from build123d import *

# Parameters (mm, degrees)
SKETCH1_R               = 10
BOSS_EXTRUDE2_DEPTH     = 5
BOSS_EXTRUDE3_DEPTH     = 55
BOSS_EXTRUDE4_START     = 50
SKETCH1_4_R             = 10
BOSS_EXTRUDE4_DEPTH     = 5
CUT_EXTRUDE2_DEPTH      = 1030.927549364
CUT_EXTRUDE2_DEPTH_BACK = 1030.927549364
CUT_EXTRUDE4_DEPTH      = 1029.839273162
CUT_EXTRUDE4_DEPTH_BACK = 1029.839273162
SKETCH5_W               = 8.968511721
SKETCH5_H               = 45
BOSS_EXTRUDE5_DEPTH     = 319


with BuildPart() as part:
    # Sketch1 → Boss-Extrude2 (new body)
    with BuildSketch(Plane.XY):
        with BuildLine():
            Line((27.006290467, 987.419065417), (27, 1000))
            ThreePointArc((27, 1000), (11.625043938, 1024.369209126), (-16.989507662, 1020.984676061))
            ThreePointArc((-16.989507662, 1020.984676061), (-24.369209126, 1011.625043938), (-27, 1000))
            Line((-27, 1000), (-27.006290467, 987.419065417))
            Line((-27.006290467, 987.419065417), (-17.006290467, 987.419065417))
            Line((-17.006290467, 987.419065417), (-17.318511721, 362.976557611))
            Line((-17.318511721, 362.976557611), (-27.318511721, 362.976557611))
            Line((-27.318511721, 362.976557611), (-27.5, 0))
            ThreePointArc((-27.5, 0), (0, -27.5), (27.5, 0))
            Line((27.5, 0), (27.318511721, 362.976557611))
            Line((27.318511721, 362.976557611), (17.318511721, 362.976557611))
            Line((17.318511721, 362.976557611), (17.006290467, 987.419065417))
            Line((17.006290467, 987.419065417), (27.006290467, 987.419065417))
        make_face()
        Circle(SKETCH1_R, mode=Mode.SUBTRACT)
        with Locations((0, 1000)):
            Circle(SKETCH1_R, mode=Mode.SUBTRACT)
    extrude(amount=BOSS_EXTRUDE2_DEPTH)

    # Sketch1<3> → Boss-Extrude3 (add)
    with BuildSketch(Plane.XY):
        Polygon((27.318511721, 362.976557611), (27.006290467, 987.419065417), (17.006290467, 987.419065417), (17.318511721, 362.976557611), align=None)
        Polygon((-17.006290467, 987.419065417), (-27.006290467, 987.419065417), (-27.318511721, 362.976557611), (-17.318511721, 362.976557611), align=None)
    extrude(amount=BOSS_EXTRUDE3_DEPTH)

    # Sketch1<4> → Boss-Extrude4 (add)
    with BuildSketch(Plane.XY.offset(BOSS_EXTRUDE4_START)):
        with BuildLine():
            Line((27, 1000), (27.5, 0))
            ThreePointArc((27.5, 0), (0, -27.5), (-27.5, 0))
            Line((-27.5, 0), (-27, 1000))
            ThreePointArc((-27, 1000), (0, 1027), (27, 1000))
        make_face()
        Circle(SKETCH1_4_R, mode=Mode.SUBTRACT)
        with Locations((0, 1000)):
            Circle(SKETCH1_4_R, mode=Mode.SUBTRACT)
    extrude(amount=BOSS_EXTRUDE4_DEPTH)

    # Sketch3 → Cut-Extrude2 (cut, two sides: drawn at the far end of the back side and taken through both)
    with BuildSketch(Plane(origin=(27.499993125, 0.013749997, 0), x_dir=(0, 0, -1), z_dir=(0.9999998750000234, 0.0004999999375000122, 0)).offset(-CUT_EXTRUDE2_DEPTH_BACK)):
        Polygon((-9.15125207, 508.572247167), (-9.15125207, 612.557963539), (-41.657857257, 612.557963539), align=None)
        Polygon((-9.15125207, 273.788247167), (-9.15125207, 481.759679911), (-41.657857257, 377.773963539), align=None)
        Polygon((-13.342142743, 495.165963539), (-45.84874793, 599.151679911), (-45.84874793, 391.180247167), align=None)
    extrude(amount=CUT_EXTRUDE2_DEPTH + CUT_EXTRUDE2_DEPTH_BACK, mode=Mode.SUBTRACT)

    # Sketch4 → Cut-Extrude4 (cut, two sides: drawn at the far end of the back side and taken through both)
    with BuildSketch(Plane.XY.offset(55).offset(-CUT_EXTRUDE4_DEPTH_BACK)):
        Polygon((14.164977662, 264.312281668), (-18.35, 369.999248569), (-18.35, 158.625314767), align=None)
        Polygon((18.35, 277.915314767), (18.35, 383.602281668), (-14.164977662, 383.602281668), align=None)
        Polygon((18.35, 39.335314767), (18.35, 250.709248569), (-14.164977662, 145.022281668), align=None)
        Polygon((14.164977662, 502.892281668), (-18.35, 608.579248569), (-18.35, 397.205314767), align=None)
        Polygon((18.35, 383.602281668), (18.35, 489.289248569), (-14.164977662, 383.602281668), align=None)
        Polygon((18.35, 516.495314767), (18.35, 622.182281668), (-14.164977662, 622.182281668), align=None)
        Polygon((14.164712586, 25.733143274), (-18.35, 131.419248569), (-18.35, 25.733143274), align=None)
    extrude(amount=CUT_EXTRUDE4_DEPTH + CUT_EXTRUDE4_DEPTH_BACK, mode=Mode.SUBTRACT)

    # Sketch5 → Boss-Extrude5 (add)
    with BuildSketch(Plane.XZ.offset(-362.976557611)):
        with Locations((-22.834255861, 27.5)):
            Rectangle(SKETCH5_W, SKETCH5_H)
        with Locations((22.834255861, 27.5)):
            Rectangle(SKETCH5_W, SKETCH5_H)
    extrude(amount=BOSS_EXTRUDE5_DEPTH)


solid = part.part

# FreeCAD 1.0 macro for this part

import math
import FreeCAD as App
import Part
import Sketcher

V = App.Vector


def add_polygon(sketch, points):
    """Adds a closed chain of lines whose ends are joined by coincident constraints."""
    first, n = sketch.GeometryCount, len(points)
    for a, b in zip(points, points[1:] + points[:1]):
        sketch.addGeometry(Part.LineSegment(App.Vector(*a, 0), App.Vector(*b, 0)), False)
    for i in range(n):
        sketch.addConstraint(Sketcher.Constraint("Coincident", first + i, 2, first + (i + 1) % n, 1))

doc = App.newDocument("Part")
body = doc.addObject("PartDesign::Body", "Body")

sketch1 = body.newObject("Sketcher::SketchObject", "Sketch")
sketch1.AttachmentSupport = (doc.getObject("XY_Plane"), [""])
sketch1.MapMode = "FlatFace"
sketch1.addGeometry([
    Part.LineSegment(V(27, 987, 0), V(27, 1000, 0)),
    Part.ArcOfCircle(Part.Circle(V(0, 1000, 0), V(0, 0, 1), 27), math.radians(0), math.radians(180)),
    Part.LineSegment(V(-27, 1000, 0), V(-27, 987, 0)),
    Part.LineSegment(V(-27, 987, 0), V(-17, 987, 0)),
    Part.LineSegment(V(-17, 987, 0), V(-17, 363, 0)),
    Part.LineSegment(V(-17, 363, 0), V(-27, 363, 0)),
    Part.LineSegment(V(-27, 363, 0), V(-28, 0, 0)),
    Part.ArcOfCircle(Part.Circle(V(0, 0, 0), V(0, 0, 1), 28), math.radians(180), math.radians(360)),
    Part.LineSegment(V(28, 0, 0), V(27, 363, 0)),
    Part.LineSegment(V(27, 363, 0), V(17, 363, 0)),
    Part.LineSegment(V(17, 363, 0), V(17, 987, 0)),
    Part.LineSegment(V(17, 987, 0), V(27, 987, 0)),
    Part.Circle(V(0, 0, 0), V(0, 0, 1), 10),
    Part.Circle(V(0, 1000, 0), V(0, 0, 1), 10),
], False)
sketch1.addConstraint([
    Sketcher.Constraint("Coincident", 0, 2, 1, 1),
    Sketcher.Constraint("Coincident", 1, 2, 2, 1),
    Sketcher.Constraint("Coincident", 2, 2, 3, 1),
    Sketcher.Constraint("Coincident", 3, 2, 4, 1),
    Sketcher.Constraint("Coincident", 4, 2, 5, 1),
    Sketcher.Constraint("Coincident", 5, 2, 6, 1),
    Sketcher.Constraint("Coincident", 6, 2, 7, 1),
    Sketcher.Constraint("Coincident", 7, 2, 8, 1),
    Sketcher.Constraint("Coincident", 8, 2, 9, 1),
    Sketcher.Constraint("Coincident", 9, 2, 10, 1),
    Sketcher.Constraint("Coincident", 10, 2, 11, 1),
    Sketcher.Constraint("Coincident", 11, 2, 0, 1),
    Sketcher.Constraint("Horizontal", 3),
    Sketcher.Constraint("Horizontal", 5),
    Sketcher.Constraint("Horizontal", 9),
    Sketcher.Constraint("Horizontal", 11),
    Sketcher.Constraint("Coincident", 7, 3, -1, 1),
    Sketcher.Constraint("Coincident", 12, 3, -1, 1),
    Sketcher.Constraint("Coincident", 13, 3, 1, 3),
    Sketcher.Constraint("Equal", 12, 13),
    Sketcher.Constraint("Symmetric", 0, 2, 1, 2, -2),
    Sketcher.Constraint("Symmetric", 5, 2, 8, 2, -2),
    Sketcher.Constraint("Symmetric", 3, 2, 10, 2, -2),
    Sketcher.Constraint("PointOnObject", 6, 2, -1),
    Sketcher.Constraint("PointOnObject", 7, 2, -1),
    Sketcher.Constraint("Parallel", 2, 4),
    Sketcher.Constraint("Parallel", 4, 6),
    Sketcher.Constraint("Parallel", 0, 8),
    Sketcher.Constraint("Parallel", 8, 10),
    Sketcher.Constraint("Horizontal", 13, 3, 0, 2),
    Sketcher.Constraint("Equal", 3, 5),
    Sketcher.Constraint("Diameter", 12, 20.0),
    Sketcher.Constraint("Radius", 1, 27.0),
    Sketcher.Constraint("Radius", 7, 27.5),
    Sketcher.Constraint("DistanceX", 3, 1, 3, 2, 10.0),
    Sketcher.Constraint("DistanceY", -1, 1, 1, 3, 1000.0),
    Sketcher.Constraint("Distance", 0, 12.580936),
    Sketcher.Constraint("Distance", 4, 624.442586),
])
pad1 = body.newObject("PartDesign::Pad", "Pad")
pad1.Profile = sketch1
pad1.Length = 5

sketch2 = body.newObject("Sketcher::SketchObject", "Sketch001")
sketch2.AttachmentSupport = (doc.getObject("XY_Plane"), [""])
sketch2.MapMode = "FlatFace"
add_polygon(sketch2, [(27, 363), (27, 987), (17, 987), (17, 363)])
add_polygon(sketch2, [(-17, 987), (-27, 987), (-27, 363), (-17, 363)])
sketch2.addConstraint([
    Sketcher.Constraint("Horizontal", 1),
    Sketcher.Constraint("Horizontal", 3),
    Sketcher.Constraint("Horizontal", 4),
    Sketcher.Constraint("Horizontal", 6),
    Sketcher.Constraint("Symmetric", 0, 2, 4, 2, -2),
    Sketcher.Constraint("Symmetric", 3, 2, 5, 2, -2),
    Sketcher.Constraint("Parallel", 0, 2),
    Sketcher.Constraint("Parallel", 5, 7),
    Sketcher.Constraint("Equal", 3, 4),
    Sketcher.Constraint("DistanceX", 1, 2, 1, 1, 10.0),
    Sketcher.Constraint("DistanceX", -1, 1, 0, 2, 27.00629),
    Sketcher.Constraint("DistanceX", -1, 1, 2, 2, 17.318512),
    Sketcher.Constraint("Distance", 0, 624.442586),
    Sketcher.Constraint("DistanceY", -1, 1, 0, 2, 987.419065),
])
pad2 = body.newObject("PartDesign::Pad", "Pad001")
pad2.Profile = sketch2
pad2.Length = 55

sketch3 = body.newObject("Sketcher::SketchObject", "Sketch002")
sketch3.AttachmentSupport = (doc.getObject("XY_Plane"), [""])
sketch3.MapMode = "FlatFace"
sketch3.AttachmentOffset = App.Placement(V(0, 0, 50), App.Rotation())
sketch3.addGeometry([
    Part.LineSegment(V(28, 0, 0), V(27, 1000, 0)),
    Part.ArcOfCircle(Part.Circle(V(0, 1000, 0), V(0, 0, 1), 27), math.radians(0), math.radians(180)),
    Part.LineSegment(V(-27, 1000, 0), V(-28, 0, 0)),
    Part.ArcOfCircle(Part.Circle(V(0, 0, 0), V(0, 0, 1), 28), math.radians(180), math.radians(360)),
    Part.Circle(V(0, 0, 0), V(0, 0, 1), 10),
    Part.Circle(V(0, 1000, 0), V(0, 0, 1), 10),
], False)
sketch3.addConstraint([
    Sketcher.Constraint("Coincident", 0, 2, 1, 1),
    Sketcher.Constraint("Coincident", 1, 2, 2, 1),
    Sketcher.Constraint("Coincident", 2, 2, 3, 1),
    Sketcher.Constraint("Coincident", 3, 2, 0, 1),
    Sketcher.Constraint("Coincident", 3, 3, -1, 1),
    Sketcher.Constraint("Coincident", 4, 3, -1, 1),
    Sketcher.Constraint("Coincident", 5, 3, 1, 3),
    Sketcher.Constraint("Equal", 4, 5),
    Sketcher.Constraint("Symmetric", 0, 2, 1, 2, -2),
    Sketcher.Constraint("PointOnObject", 2, 2, -1),
    Sketcher.Constraint("PointOnObject", 3, 2, -1),
    Sketcher.Constraint("Horizontal", 5, 3, 0, 2),
    Sketcher.Constraint("Diameter", 4, 20.0),
    Sketcher.Constraint("Radius", 1, 27.0),
    Sketcher.Constraint("Radius", 3, 27.5),
    Sketcher.Constraint("DistanceY", -1, 1, 1, 3, 1000.0),
])
pad3 = body.newObject("PartDesign::Pad", "Pad002")
pad3.Profile = sketch3
pad3.Length = 5

sketch4 = body.newObject("Sketcher::SketchObject", "Sketch003")
sketch4.Placement = App.Placement(V(27.499993, 0.01375, 0), App.Rotation(V(0, 0, -1), V(-0.0005, 0.999999875, 0), V(0.999999875, 0.0005, 0), "ZXY"))
add_polygon(sketch4, [(-9, 509), (-9, 613), (-42, 613)])
add_polygon(sketch4, [(-9, 274), (-9, 482), (-42, 378)])
add_polygon(sketch4, [(-13, 495), (-46, 599), (-46, 391)])
sketch4.addConstraint([
    Sketcher.Constraint("Vertical", 0),
    Sketcher.Constraint("Horizontal", 1),
    Sketcher.Constraint("Vertical", 3),
    Sketcher.Constraint("Vertical", 7),
    Sketcher.Constraint("Parallel", 2, 5),
    Sketcher.Constraint("Parallel", 5, 6),
    Sketcher.Constraint("Parallel", 4, 8),
    Sketcher.Constraint("Vertical", 2, 2, 3, 2),
    Sketcher.Constraint("Vertical", 1, 2, 4, 2),
    Sketcher.Constraint("Equal", 3, 7),
    Sketcher.Constraint("Equal", 2, 4),
    Sketcher.Constraint("DistanceY", 4, 2, 1, 2, 234.784),
    Sketcher.Constraint("DistanceY", 3, 2, 6, 2, 117.392),
    Sketcher.Constraint("DistanceX", 1, 2, 1, 1, 32.506605),
    Sketcher.Constraint("DistanceY", 0, 1, 0, 2, 103.985716),
    Sketcher.Constraint("DistanceY", -1, 1, 3, 2, 481.75968),
    Sketcher.Constraint("DistanceX", 6, 2, 1, 2, 4.190891),
    Sketcher.Constraint("DistanceX", 0, 2, -1, 1, 9.151252),
])
pocket1 = body.newObject("PartDesign::Pocket", "Pocket")
pocket1.Profile = sketch4
pocket1.Type = "ThroughAll"
pocket1.Midplane = True

sketch5 = body.newObject("Sketcher::SketchObject", "Sketch004")
sketch5.AttachmentSupport = (doc.getObject("XY_Plane"), [""])
sketch5.MapMode = "FlatFace"
sketch5.AttachmentOffset = App.Placement(V(0, 0, 55), App.Rotation())
add_polygon(sketch5, [(14, 264), (-18, 370), (-18, 159)])
add_polygon(sketch5, [(18, 278), (18, 489), (-14, 384)])
add_polygon(sketch5, [(18, 39), (18, 251), (-14, 145)])
add_polygon(sketch5, [(14, 503), (-18, 609), (-18, 397)])
add_polygon(sketch5, [(18, 516), (18, 622), (-14, 622)])
add_polygon(sketch5, [(14, 26), (-18, 131), (-18, 26)])
sketch5.addConstraint([
    Sketcher.Constraint("Vertical", 1),
    Sketcher.Constraint("Vertical", 3),
    Sketcher.Constraint("Vertical", 6),
    Sketcher.Constraint("Vertical", 10),
    Sketcher.Constraint("Vertical", 12),
    Sketcher.Constraint("Horizontal", 13),
    Sketcher.Constraint("Vertical", 16),
    Sketcher.Constraint("Horizontal", 17),
    Sketcher.Constraint("Parallel", 2, 4),
    Sketcher.Constraint("Parallel", 0, 5),
    Sketcher.Constraint("Parallel", 4, 7),
    Sketcher.Constraint("Parallel", 5, 8),
    Sketcher.Constraint("Parallel", 8, 9),
    Sketcher.Constraint("Parallel", 7, 11),
    Sketcher.Constraint("Parallel", 9, 14),
    Sketcher.Constraint("Parallel", 14, 15),
    Sketcher.Constraint("Vertical", 5, 2, 6, 2),
    Sketcher.Constraint("Vertical", 4, 2, 7, 2),
    Sketcher.Constraint("Vertical", 1, 2, 9, 2),
    Sketcher.Constraint("Vertical", 2, 2, 11, 2),
    Sketcher.Constraint("Vertical", 8, 2, 12, 2),
    Sketcher.Constraint("Vertical", 7, 2, 13, 2),
    Sketcher.Constraint("Vertical", 10, 2, 15, 2),
    Sketcher.Constraint("Equal", 1, 3),
    Sketcher.Constraint("Equal", 0, 2),
    Sketcher.Constraint("DistanceX", 0, 2, 3, 2, 36.7),
    Sketcher.Constraint("DistanceX", 0, 2, -1, 1, 18.35),
    Sketcher.Constraint("DistanceY", 0, 2, 3, 2, 119.29),
    Sketcher.Constraint("DistanceY", 6, 2, 0, 2, 119.29),
    Sketcher.Constraint("DistanceY", 3, 2, 9, 2, 119.29),
    Sketcher.Constraint("DistanceY", 11, 2, 12, 2, 119.29),
    Sketcher.Constraint("DistanceY", 15, 2, 6, 2, 119.29),
    Sketcher.Constraint("Distance", 0, 110.575579),
    Sketcher.Constraint("DistanceX", 13, 2, 13, 1, 32.514978),
    Sketcher.Constraint("DistanceX", 17, 1, 17, 2, 32.514713),
    Sketcher.Constraint("DistanceY", -1, 1, 0, 2, 369.999249),
])
pocket2 = body.newObject("PartDesign::Pocket", "Pocket001")
pocket2.Profile = sketch5
pocket2.Type = "ThroughAll"
pocket2.Midplane = True

sketch6 = body.newObject("Sketcher::SketchObject", "Sketch005")
sketch6.AttachmentSupport = (doc.getObject("XZ_Plane"), [""])
sketch6.MapMode = "FlatFace"
sketch6.AttachmentOffset = App.Placement(V(0, 0, -362.976558), App.Rotation())
add_polygon(sketch6, [(-27, 50), (-27, 5), (-18, 5), (-18, 50)])
add_polygon(sketch6, [(18, 50), (18, 5), (27, 5), (27, 50)])
sketch6.addConstraint([
    Sketcher.Constraint("Vertical", 0),
    Sketcher.Constraint("Horizontal", 1),
    Sketcher.Constraint("Vertical", 2),
    Sketcher.Constraint("Horizontal", 3),
    Sketcher.Constraint("Vertical", 4),
    Sketcher.Constraint("Horizontal", 5),
    Sketcher.Constraint("Vertical", 6),
    Sketcher.Constraint("Horizontal", 7),
    Sketcher.Constraint("Symmetric", 1, 2, 4, 2, -2),
    Sketcher.Constraint("Symmetric", 3, 2, 6, 2, -2),
    Sketcher.Constraint("DistanceY", 0, 2, 0, 1, 45.0),
    Sketcher.Constraint("DistanceY", -1, 1, 0, 2, 5.0),
    Sketcher.Constraint("DistanceX", 1, 2, 4, 2, 36.7),
    Sketcher.Constraint("DistanceX", 1, 1, 1, 2, 8.968512),
])
pad4 = body.newObject("PartDesign::Pad", "Pad003")
pad4.Profile = sketch6
pad4.Length = 319

doc.recompute()
